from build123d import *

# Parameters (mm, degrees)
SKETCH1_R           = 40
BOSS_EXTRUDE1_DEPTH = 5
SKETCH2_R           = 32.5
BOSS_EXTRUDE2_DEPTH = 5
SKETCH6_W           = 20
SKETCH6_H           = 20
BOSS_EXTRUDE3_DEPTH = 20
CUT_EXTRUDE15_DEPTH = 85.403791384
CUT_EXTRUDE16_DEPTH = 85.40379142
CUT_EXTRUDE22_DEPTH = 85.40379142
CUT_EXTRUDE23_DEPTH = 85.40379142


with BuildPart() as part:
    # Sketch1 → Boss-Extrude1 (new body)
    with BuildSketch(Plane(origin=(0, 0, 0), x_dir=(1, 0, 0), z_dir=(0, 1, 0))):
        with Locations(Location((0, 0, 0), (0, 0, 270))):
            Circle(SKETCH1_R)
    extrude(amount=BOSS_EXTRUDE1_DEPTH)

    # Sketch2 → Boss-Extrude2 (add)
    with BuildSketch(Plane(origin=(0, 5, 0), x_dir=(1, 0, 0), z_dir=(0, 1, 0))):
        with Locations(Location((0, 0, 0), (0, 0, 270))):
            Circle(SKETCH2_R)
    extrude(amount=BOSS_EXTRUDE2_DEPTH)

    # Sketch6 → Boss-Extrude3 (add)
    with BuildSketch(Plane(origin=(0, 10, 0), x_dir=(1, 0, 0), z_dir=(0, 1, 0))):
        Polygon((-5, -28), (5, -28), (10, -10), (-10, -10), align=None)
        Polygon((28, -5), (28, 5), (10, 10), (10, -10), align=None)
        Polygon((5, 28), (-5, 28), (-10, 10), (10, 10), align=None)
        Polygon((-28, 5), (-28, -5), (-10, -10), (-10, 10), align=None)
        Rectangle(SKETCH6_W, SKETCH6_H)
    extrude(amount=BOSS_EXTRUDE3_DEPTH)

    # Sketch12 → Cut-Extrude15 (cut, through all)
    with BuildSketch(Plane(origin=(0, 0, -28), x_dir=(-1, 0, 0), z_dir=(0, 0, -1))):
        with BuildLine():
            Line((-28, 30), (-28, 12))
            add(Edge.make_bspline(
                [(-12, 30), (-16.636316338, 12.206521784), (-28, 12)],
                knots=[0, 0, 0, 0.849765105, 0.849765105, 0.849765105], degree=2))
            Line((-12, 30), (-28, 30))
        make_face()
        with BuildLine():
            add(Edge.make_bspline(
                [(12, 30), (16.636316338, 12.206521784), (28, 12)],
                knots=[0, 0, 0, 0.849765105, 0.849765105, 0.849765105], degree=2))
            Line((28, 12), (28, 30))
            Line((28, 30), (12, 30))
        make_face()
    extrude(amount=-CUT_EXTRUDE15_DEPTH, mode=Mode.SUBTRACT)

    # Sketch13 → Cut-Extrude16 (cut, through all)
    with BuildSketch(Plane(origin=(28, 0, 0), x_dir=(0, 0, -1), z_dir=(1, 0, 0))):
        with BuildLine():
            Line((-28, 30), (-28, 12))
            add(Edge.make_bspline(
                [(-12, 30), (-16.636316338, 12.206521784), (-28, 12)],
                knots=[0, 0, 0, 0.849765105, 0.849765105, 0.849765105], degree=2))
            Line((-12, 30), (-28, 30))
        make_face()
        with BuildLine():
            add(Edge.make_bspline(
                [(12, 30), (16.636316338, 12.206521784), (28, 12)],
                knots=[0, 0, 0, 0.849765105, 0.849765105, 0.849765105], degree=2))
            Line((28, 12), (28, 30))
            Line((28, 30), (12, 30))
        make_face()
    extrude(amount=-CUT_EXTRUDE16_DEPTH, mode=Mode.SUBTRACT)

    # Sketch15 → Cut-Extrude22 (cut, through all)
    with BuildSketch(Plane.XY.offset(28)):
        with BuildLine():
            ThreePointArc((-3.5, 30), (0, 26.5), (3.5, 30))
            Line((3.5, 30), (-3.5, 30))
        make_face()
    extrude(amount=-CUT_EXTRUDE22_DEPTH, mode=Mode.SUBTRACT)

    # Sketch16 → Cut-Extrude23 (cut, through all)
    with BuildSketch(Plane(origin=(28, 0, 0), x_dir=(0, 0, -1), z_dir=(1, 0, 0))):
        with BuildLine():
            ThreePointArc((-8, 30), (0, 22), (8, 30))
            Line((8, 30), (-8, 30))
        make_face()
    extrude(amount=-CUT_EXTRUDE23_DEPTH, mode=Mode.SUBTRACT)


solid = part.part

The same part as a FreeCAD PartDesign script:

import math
import FreeCAD as App
import Part
import Sketcher

V = App.Vector

doc = App.newDocument("Part")
body = doc.addObject("PartDesign::Body", "Body")

sketch1 = body.newObject("Sketcher::SketchObject", "Sketch")
sketch1.AttachmentSupport = (doc.getObject("XZ_Plane"), [""])
sketch1.MapMode = "FlatFace"
sketch1.addGeometry(Part.Circle(V(0, 0, 0), V(0, 0, 1), 40), False)
sketch1.addConstraint(Sketcher.Constraint("Coincident", 0, 3, -1, 1))
sketch1.addConstraint(Sketcher.Constraint("Diameter", 0, 80.0))
pad1 = body.newObject("PartDesign::Pad", "Pad")
pad1.Profile = sketch1
pad1.Length = 5
pad1.Reversed = True

sketch2 = body.newObject("Sketcher::SketchObject", "Sketch001")
sketch2.AttachmentSupport = (doc.getObject("XZ_Plane"), [""])
sketch2.MapMode = "FlatFace"
sketch2.AttachmentOffset = App.Placement(V(0, 0, -5), App.Rotation())
sketch2.addGeometry(Part.Circle(V(0, 0, 0), V(0, 0, 1), 32), False)
sketch2.addConstraint(Sketcher.Constraint("Coincident", 0, 3, -1, 1))
sketch2.addConstraint(Sketcher.Constraint("Diameter", 0, 65.0))
pad2 = body.newObject("PartDesign::Pad", "Pad001")
pad2.Profile = sketch2
pad2.Length = 5
pad2.Reversed = True

sketch3 = body.newObject("Sketcher::SketchObject", "Sketch002")
sketch3.AttachmentSupport = (doc.getObject("XZ_Plane"), [""])
sketch3.MapMode = "FlatFace"
sketch3.AttachmentOffset = App.Placement(V(0, 0, -10), App.Rotation())
sketch3.addGeometry(Part.LineSegment(V(-5, 28, 0), V(5, 28, 0)), False)
sketch3.addGeometry(Part.LineSegment(V(5, 28, 0), V(10, 10, 0)), False)
sketch3.addGeometry(Part.LineSegment(V(10, 10, 0), V(28, 5, 0)), False)
sketch3.addGeometry(Part.LineSegment(V(28, 5, 0), V(28, -5, 0)), False)
sketch3.addGeometry(Part.LineSegment(V(28, -5, 0), V(10, -10, 0)), False)
sketch3.addGeometry(Part.LineSegment(V(10, -10, 0), V(5, -28, 0)), False)
sketch3.addGeometry(Part.LineSegment(V(5, -28, 0), V(-5, -28, 0)), False)
sketch3.addGeometry(Part.LineSegment(V(-5, -28, 0), V(-10, -10, 0)), False)
sketch3.addGeometry(Part.LineSegment(V(-10, -10, 0), V(-28, -5, 0)), False)
sketch3.addGeometry(Part.LineSegment(V(-28, -5, 0), V(-28, 5, 0)), False)
sketch3.addGeometry(Part.LineSegment(V(-28, 5, 0), V(-10, 10, 0)), False)
sketch3.addGeometry(Part.LineSegment(V(-10, 10, 0), V(-5, 28, 0)), False)
sketch3.addConstraint(Sketcher.Constraint("Coincident", 0, 2, 1, 1))
sketch3.addConstraint(Sketcher.Constraint("Coincident", 1, 2, 2, 1))
sketch3.addConstraint(Sketcher.Constraint("Coincident", 2, 2, 3, 1))
sketch3.addConstraint(Sketcher.Constraint("Coincident", 3, 2, 4, 1))
sketch3.addConstraint(Sketcher.Constraint("Coincident", 4, 2, 5, 1))
sketch3.addConstraint(Sketcher.Constraint("Coincident", 5, 2, 6, 1))
sketch3.addConstraint(Sketcher.Constraint("Coincident", 6, 2, 7, 1))
sketch3.addConstraint(Sketcher.Constraint("Coincident", 7, 2, 8, 1))
sketch3.addConstraint(Sketcher.Constraint("Coincident", 8, 2, 9, 1))
sketch3.addConstraint(Sketcher.Constraint("Coincident", 9, 2, 10, 1))
sketch3.addConstraint(Sketcher.Constraint("Coincident", 10, 2, 11, 1))
sketch3.addConstraint(Sketcher.Constraint("Coincident", 11, 2, 0, 1))
sketch3.addConstraint(Sketcher.Constraint("Horizontal", 0))
sketch3.addConstraint(Sketcher.Constraint("Vertical", 3))
sketch3.addConstraint(Sketcher.Constraint("Horizontal", 6))
sketch3.addConstraint(Sketcher.Constraint("Vertical", 9))
sketch3.addConstraint(Sketcher.Constraint("Symmetric", 0, 2, 6, 2, -1, 1))
sketch3.addConstraint(Sketcher.Constraint("Symmetric", 1, 2, 7, 2, -1, 1))
sketch3.addConstraint(Sketcher.Constraint("Symmetric", 2, 2, 8, 2, -1, 1))
sketch3.addConstraint(Sketcher.Constraint("Symmetric", 4, 2, 10, 2, -1, 1))
sketch3.addConstraint(Sketcher.Constraint("Symmetric", 4, 2, 7, 2, -2))
sketch3.addConstraint(Sketcher.Constraint("Perpendicular", 1, 4))
sketch3.addConstraint(Sketcher.Constraint("Perpendicular", 2, 5))
sketch3.addConstraint(Sketcher.Constraint("Perpendicular", 7, 10))
sketch3.addConstraint(Sketcher.Constraint("Perpendicular", 8, 11))
sketch3.addConstraint(Sketcher.Constraint("Horizontal", 3, 2, 8, 2))
sketch3.addConstraint(Sketcher.Constraint("Equal", 6, 3))
sketch3.addConstraint(Sketcher.Constraint("Equal", 1, 2))
sketch3.addConstraint(Sketcher.Constraint("DistanceX", 0, 1, 0, 2, 10.0))
sketch3.addConstraint(Sketcher.Constraint("DistanceY", -1, 1, 0, 2, 28.0))
sketch3.addConstraint(Sketcher.Constraint("DistanceX", -1, 1, 1, 2, 10.0))
pad3 = body.newObject("PartDesign::Pad", "Pad002")
pad3.Profile = sketch3
pad3.Length = 20
pad3.Reversed = True

sketch4 = body.newObject("Sketcher::SketchObject", "Sketch003")
sketch4.AttachmentSupport = (doc.getObject("XY_Plane"), [""])
sketch4.MapMode = "FlatFace"
sketch4.AttachmentOffset = App.Placement(V(0, 0, -28), App.Rotation())
sketch4.addGeometry(Part.LineSegment(V(28, 30, 0), V(28, 12, 0)), False)
sketch4.addGeometry(Part.BSplineCurve([V(12, 30, 0), V(16.636316, 12.206522, 0), V(28, 12, 0)], [3, 3], [0, 0.849765105], False, 2, [1, 1, 1], False), False)
sketch4.addGeometry(Part.LineSegment(V(12, 30, 0), V(28, 30, 0)), False)
sketch4.addGeometry(Part.BSplineCurve([V(-12, 30, 0), V(-16.636316, 12.206522, 0), V(-28, 12, 0)], [3, 3], [0, 0.849765105], False, 2, [1, 1, 1], False), False)
sketch4.addGeometry(Part.LineSegment(V(-28, 12, 0), V(-28, 30, 0)), False)
sketch4.addGeometry(Part.LineSegment(V(-28, 30, 0), V(-12, 30, 0)), False)
sketch4.addConstraint(Sketcher.Constraint("Block", 1))
sketch4.addConstraint(Sketcher.Constraint("Block", 3))
sketch4.addConstraint(Sketcher.Constraint("Coincident", 0, 2, 1, 2))
sketch4.addConstraint(Sketcher.Constraint("Coincident", 1, 1, 2, 1))
sketch4.addConstraint(Sketcher.Constraint("Coincident", 2, 2, 0, 1))
sketch4.addConstraint(Sketcher.Constraint("Coincident", 3, 2, 4, 1))
sketch4.addConstraint(Sketcher.Constraint("Coincident", 4, 2, 5, 1))
sketch4.addConstraint(Sketcher.Constraint("Coincident", 5, 2, 3, 1))
sketch4.addConstraint(Sketcher.Constraint("Vertical", 0))
sketch4.addConstraint(Sketcher.Constraint("Horizontal", 2))
sketch4.addConstraint(Sketcher.Constraint("Vertical", 4))
sketch4.addConstraint(Sketcher.Constraint("Horizontal", 5))
pocket1 = body.newObject("PartDesign::Pocket", "Pocket")
pocket1.Profile = sketch4
pocket1.Type = "ThroughAll"
pocket1.Reversed = True

sketch5 = body.newObject("Sketcher::SketchObject", "Sketch004")
sketch5.AttachmentSupport = (doc.getObject("YZ_Plane"), [""])
sketch5.MapMode = "FlatFace"
sketch5.AttachmentOffset = App.Placement(V(0, 0, 28), App.Rotation())
sketch5.addGeometry(Part.LineSegment(V(30, 28, 0), V(12, 28, 0)), False)
sketch5.addGeometry(Part.BSplineCurve([V(30, 12, 0), V(12.206522, 16.636316, 0), V(12, 28, 0)], [3, 3], [0, 0.849765105], False, 2, [1, 1, 1], False), False)
sketch5.addGeometry(Part.LineSegment(V(30, 12, 0), V(30, 28, 0)), False)
sketch5.addGeometry(Part.BSplineCurve([V(30, -12, 0), V(12.206522, -16.636316, 0), V(12, -28, 0)], [3, 3], [0, 0.849765105], False, 2, [1, 1, 1], False), False)
sketch5.addGeometry(Part.LineSegment(V(12, -28, 0), V(30, -28, 0)), False)
sketch5.addGeometry(Part.LineSegment(V(30, -28, 0), V(30, -12, 0)), False)
sketch5.addConstraint(Sketcher.Constraint("Block", 1))
sketch5.addConstraint(Sketcher.Constraint("Block", 3))
sketch5.addConstraint(Sketcher.Constraint("Coincident", 0, 2, 1, 2))
sketch5.addConstraint(Sketcher.Constraint("Coincident", 1, 1, 2, 1))
sketch5.addConstraint(Sketcher.Constraint("Coincident", 2, 2, 0, 1))
sketch5.addConstraint(Sketcher.Constraint("Coincident", 3, 2, 4, 1))
sketch5.addConstraint(Sketcher.Constraint("Coincident", 4, 2, 5, 1))
sketch5.addConstraint(Sketcher.Constraint("Coincident", 5, 2, 3, 1))
sketch5.addConstraint(Sketcher.Constraint("Horizontal", 0))
sketch5.addConstraint(Sketcher.Constraint("Vertical", 2))
sketch5.addConstraint(Sketcher.Constraint("Horizontal", 4))
sketch5.addConstraint(Sketcher.Constraint("Vertical", 5))
pocket2 = body.newObject("PartDesign::Pocket", "Pocket001")
pocket2.Profile = sketch5
pocket2.Type = "ThroughAll"

sketch6 = body.newObject("Sketcher::SketchObject", "Sketch005")
sketch6.AttachmentSupport = (doc.getObject("XY_Plane"), [""])
sketch6.MapMode = "FlatFace"
sketch6.AttachmentOffset = App.Placement(V(0, 0, 28), App.Rotation())
sketch6.addGeometry(Part.ArcOfCircle(Part.Circle(V(0, 30, 0), V(0, 0, 1), 3.5), math.radians(180), math.radians(360)), False)
sketch6.addGeometry(Part.LineSegment(V(3.5, 30, 0), V(-3.5, 30, 0)), False)
sketch6.addConstraint(Sketcher.Constraint("Coincident", 0, 1, 1, 2))
sketch6.addConstraint(Sketcher.Constraint("Coincident", 1, 1, 0, 2))
sketch6.addConstraint(Sketcher.Constraint("Horizontal", 1))
sketch6.addConstraint(Sketcher.Constraint("PointOnObject", 0, 3, -2))
sketch6.addConstraint(Sketcher.Constraint("Radius", 0, 3.5))
sketch6.addConstraint(Sketcher.Constraint("DistanceY", -1, 1, 0, 3, 30.0))
sketch6.addConstraint(Sketcher.Constraint("DistanceY", -1, 1, 0, 1, 30.0))
pocket3 = body.newObject("PartDesign::Pocket", "Pocket002")
pocket3.Profile = sketch6
pocket3.Type = "ThroughAll"

sketch7 = body.newObject("Sketcher::SketchObject", "Sketch006")
sketch7.AttachmentSupport = (doc.getObject("YZ_Plane"), [""])
sketch7.MapMode = "FlatFace"
sketch7.AttachmentOffset = App.Placement(V(0, 0, 28), App.Rotation())
sketch7.addGeometry(Part.ArcOfCircle(Part.Circle(V(30, 0, 0), V(0, 0, 1), 8), math.radians(90), math.radians(270)), False)
sketch7.addGeometry(Part.LineSegment(V(30, -8, 0), V(30, 8, 0)), False)
sketch7.addConstraint(Sketcher.Constraint("Coincident", 0, 1, 1, 2))
sketch7.addConstraint(Sketcher.Constraint("Coincident", 1, 1, 0, 2))
sketch7.addConstraint(Sketcher.Constraint("Vertical", 1))
sketch7.addConstraint(Sketcher.Constraint("PointOnObject", 0, 3, -1))
sketch7.addConstraint(Sketcher.Constraint("Radius", 0, 8.0))
sketch7.addConstraint(Sketcher.Constraint("DistanceX", -1, 1, 0, 3, 30.0))
sketch7.addConstraint(Sketcher.Constraint("DistanceX", -1, 1, 0, 1, 30.0))
pocket4 = body.newObject("PartDesign::Pocket", "Pocket003")
pocket4.Profile = sketch7
pocket4.Type = "ThroughAll"

doc.recompute()
